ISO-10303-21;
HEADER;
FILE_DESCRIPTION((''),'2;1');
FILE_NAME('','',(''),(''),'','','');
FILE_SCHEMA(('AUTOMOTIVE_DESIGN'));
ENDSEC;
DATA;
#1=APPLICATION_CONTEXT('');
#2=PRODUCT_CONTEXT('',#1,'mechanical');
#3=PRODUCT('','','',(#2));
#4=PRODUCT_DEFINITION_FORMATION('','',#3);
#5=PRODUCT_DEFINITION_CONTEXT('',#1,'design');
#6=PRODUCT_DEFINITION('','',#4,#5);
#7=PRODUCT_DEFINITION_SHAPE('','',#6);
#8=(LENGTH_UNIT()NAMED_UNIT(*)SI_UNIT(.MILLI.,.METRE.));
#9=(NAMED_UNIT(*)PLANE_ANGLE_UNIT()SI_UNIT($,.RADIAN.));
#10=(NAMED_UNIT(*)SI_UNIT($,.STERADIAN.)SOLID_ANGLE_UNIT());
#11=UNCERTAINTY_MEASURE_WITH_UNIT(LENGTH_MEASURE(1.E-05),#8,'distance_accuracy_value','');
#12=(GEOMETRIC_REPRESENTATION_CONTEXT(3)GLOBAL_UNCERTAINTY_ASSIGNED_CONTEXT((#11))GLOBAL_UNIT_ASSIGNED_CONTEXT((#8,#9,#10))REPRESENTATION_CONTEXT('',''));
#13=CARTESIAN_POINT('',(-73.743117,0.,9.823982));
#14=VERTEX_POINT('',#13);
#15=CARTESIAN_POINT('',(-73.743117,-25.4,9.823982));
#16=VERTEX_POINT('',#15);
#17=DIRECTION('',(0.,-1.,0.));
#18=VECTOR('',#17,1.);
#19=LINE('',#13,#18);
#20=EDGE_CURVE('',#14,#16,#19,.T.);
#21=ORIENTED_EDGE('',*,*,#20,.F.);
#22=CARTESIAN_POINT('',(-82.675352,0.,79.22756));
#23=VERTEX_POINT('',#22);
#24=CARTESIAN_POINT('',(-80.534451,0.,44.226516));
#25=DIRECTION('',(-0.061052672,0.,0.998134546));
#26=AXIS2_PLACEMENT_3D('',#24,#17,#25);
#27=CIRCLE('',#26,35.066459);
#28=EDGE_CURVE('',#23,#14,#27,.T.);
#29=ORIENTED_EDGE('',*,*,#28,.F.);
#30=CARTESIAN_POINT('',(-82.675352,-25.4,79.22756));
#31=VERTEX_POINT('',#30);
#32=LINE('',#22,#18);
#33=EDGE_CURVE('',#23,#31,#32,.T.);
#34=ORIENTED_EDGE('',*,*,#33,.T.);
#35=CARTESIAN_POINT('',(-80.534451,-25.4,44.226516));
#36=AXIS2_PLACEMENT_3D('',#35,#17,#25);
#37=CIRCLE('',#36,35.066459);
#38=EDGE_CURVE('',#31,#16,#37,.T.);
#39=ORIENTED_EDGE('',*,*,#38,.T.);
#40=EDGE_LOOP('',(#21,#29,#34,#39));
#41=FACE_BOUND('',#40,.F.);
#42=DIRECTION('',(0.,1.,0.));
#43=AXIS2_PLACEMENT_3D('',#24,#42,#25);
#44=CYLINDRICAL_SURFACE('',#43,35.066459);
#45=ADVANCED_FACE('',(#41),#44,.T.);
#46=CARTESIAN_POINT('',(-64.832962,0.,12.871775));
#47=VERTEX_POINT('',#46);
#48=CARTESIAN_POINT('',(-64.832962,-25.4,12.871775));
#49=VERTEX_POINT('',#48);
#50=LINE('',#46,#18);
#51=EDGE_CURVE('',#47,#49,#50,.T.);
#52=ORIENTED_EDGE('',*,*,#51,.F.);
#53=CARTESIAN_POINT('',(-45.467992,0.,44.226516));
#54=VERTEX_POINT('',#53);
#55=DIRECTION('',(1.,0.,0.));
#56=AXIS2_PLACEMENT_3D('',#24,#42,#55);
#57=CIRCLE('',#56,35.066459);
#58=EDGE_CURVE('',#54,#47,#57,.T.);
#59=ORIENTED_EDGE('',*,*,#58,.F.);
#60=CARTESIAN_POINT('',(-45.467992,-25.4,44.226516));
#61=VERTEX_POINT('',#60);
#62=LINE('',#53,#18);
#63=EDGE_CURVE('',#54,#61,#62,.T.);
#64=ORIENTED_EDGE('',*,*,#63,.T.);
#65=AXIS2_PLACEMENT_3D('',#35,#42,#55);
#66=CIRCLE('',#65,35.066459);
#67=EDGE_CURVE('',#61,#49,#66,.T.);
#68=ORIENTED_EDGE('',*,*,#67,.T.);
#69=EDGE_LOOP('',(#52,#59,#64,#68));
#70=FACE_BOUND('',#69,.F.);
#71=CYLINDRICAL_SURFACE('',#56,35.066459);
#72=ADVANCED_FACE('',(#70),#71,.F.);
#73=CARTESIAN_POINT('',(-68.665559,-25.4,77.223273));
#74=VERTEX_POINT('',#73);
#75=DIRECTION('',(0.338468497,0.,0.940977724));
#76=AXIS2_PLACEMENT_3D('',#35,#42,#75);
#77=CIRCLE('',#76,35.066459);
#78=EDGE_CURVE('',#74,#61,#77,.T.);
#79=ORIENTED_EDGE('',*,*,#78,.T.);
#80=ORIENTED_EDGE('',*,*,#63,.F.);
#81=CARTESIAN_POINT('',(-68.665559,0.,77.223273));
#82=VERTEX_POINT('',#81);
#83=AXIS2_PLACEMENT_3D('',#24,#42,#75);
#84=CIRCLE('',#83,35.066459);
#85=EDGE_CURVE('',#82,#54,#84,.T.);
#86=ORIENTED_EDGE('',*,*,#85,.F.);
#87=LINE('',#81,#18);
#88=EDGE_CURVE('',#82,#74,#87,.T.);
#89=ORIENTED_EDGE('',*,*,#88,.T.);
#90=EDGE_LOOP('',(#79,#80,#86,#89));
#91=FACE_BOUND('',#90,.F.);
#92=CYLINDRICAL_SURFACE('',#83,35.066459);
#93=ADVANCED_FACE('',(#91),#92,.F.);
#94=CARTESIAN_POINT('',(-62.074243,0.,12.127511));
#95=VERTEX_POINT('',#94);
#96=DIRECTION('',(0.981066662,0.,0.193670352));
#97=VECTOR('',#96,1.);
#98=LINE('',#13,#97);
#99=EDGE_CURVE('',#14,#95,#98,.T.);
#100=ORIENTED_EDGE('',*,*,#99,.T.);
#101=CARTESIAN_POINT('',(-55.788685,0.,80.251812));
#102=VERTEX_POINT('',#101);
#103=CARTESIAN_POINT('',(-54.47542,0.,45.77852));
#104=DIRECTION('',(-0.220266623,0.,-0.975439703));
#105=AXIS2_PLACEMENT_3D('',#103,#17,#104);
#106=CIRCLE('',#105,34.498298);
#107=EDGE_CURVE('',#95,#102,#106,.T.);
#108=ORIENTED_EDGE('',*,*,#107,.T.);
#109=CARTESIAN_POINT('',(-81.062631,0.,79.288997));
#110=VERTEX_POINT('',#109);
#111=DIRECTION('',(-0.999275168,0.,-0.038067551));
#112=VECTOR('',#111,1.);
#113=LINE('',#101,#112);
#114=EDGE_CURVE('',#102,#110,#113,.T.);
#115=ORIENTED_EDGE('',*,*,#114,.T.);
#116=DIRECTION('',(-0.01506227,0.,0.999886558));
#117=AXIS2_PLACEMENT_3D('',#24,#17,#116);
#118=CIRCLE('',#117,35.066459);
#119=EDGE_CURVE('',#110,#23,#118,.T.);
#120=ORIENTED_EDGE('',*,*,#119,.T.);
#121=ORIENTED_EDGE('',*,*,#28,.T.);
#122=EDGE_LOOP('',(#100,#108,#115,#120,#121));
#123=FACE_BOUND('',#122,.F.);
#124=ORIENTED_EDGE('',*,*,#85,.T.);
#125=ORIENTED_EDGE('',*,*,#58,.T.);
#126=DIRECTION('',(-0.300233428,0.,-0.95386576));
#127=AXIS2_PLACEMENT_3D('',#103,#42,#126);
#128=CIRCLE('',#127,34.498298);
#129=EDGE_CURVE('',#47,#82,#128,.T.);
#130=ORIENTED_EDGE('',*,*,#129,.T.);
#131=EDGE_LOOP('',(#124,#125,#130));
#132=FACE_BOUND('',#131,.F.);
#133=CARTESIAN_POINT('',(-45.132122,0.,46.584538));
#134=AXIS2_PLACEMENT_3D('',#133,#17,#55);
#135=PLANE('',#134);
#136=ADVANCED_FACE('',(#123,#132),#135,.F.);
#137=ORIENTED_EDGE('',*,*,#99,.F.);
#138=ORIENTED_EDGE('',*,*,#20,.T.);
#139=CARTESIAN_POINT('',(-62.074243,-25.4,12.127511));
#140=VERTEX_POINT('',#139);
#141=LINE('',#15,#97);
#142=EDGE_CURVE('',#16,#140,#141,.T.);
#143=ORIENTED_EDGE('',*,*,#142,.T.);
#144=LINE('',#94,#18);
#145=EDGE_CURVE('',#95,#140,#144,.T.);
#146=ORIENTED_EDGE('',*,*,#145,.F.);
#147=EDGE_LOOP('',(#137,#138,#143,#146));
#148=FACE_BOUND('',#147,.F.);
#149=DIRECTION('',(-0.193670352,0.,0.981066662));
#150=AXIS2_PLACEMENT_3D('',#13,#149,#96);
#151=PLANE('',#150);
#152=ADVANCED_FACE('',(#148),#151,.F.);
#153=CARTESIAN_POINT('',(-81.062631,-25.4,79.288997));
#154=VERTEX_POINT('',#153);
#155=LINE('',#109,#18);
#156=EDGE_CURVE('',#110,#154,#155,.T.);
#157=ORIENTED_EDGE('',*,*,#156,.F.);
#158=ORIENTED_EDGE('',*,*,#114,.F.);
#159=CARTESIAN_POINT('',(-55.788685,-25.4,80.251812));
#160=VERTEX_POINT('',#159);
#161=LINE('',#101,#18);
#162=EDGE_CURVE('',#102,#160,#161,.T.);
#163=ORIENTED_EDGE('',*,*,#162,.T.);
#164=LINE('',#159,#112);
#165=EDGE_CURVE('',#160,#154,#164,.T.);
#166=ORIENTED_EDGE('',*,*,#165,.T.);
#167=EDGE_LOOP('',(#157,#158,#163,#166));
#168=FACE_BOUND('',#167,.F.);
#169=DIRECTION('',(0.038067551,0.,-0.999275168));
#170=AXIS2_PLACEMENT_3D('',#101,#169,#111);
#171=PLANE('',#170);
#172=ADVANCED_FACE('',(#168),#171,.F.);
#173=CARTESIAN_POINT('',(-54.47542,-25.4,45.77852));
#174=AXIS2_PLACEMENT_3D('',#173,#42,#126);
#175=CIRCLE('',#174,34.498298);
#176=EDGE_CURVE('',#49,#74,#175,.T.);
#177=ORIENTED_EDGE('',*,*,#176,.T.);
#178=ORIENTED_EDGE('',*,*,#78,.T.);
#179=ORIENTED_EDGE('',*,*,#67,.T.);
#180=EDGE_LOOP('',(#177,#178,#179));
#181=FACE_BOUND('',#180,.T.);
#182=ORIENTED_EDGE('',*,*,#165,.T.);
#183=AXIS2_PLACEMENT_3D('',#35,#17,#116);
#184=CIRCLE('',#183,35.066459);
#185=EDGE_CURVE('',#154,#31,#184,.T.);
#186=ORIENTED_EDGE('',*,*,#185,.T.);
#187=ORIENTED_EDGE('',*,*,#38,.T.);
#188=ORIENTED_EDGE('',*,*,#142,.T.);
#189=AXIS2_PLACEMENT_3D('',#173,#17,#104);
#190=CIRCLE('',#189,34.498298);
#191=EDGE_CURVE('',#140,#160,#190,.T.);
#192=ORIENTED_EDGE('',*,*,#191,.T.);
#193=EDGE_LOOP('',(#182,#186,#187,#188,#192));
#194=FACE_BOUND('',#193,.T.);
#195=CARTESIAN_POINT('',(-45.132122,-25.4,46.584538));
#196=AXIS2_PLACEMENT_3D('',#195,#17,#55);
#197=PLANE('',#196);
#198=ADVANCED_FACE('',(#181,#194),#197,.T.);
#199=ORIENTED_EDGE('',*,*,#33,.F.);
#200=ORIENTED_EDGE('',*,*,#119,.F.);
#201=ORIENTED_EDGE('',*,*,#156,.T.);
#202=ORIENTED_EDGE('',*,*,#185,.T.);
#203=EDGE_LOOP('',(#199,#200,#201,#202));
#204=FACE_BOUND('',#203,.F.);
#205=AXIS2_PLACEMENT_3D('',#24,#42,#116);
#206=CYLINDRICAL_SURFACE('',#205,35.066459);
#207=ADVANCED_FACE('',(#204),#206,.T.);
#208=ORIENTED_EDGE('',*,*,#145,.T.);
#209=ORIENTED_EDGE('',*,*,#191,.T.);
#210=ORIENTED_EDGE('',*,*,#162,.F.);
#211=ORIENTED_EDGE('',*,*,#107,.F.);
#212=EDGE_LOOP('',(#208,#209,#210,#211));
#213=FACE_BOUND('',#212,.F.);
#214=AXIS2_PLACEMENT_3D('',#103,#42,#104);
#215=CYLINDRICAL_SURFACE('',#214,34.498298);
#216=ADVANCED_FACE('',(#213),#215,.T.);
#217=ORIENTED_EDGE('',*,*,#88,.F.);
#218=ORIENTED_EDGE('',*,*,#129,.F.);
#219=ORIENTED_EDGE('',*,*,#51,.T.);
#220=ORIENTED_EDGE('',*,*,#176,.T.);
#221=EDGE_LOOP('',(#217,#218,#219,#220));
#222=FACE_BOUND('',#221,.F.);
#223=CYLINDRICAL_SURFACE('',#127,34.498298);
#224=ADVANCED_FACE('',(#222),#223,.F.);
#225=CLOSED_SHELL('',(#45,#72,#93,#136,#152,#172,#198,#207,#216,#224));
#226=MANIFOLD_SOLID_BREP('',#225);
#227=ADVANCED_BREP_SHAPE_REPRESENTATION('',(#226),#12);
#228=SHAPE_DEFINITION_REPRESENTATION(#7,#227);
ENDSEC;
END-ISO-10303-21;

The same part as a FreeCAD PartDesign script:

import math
import FreeCAD as App
import Part
import Sketcher

V = App.Vector
Q = App.Units.Quantity

doc = App.newDocument("Part")
body = doc.addObject("PartDesign::Body", "Body")

sketch1 = body.newObject("Sketcher::SketchObject", "Sketch")
sketch1.AttachmentSupport = (doc.getObject("XZ_Plane"), [""])
sketch1.MapMode = "FlatFace"
sketch1.addGeometry([
    Part.ArcOfCircle(Part.Circle(V(-54.5, 45.8, 0), V(0, 0, 1), 34.5), math.radians(-103), math.radians(92)),
    Part.LineSegment(V(-55.8, 80.3, 0), V(-81.1, 79.3, 0)),
    Part.ArcOfCircle(Part.Circle(V(-80.5, 44.2, 0), V(0, 0, 1), 35.1), math.radians(90.86), math.radians(93.5)),
    Part.ArcOfCircle(Part.Circle(V(-80.5, 44.2, 0), V(0, 0, 1), 35.1), math.radians(94), math.radians(281)),
    Part.LineSegment(V(-73.7, 9.8, 0), V(-62.1, 12.1, 0)),
    Part.ArcOfCircle(Part.Circle(V(-80.5, 44.2, 0), V(0, 0, 1), 35.1), math.radians(0), math.radians(70)),
    Part.ArcOfCircle(Part.Circle(V(-80.5, 44.2, 0), V(0, 0, 1), 35.1), math.radians(-63), math.radians(0)),
    Part.ArcOfCircle(Part.Circle(V(-54.5, 45.8, 0), V(0, 0, 1), 34.5), math.radians(114), math.radians(253)),
], False)
sketch1.addConstraint([
    Sketcher.Constraint("Tangent", 0, 2, 1, 1),
    Sketcher.Constraint("Coincident", 1, 2, 2, 1),
    Sketcher.Constraint("Tangent", 2, 2, 3, 1),
    Sketcher.Constraint("Tangent", 3, 2, 4, 1),
    Sketcher.Constraint("Coincident", 4, 2, 0, 1),
    Sketcher.Constraint("Tangent", 5, 1, 6, 2),
    Sketcher.Constraint("Coincident", 6, 1, 7, 2),
    Sketcher.Constraint("Coincident", 7, 1, 5, 2),
    Sketcher.Constraint("Coincident", 5, 3, 2, 3),
    Sketcher.Constraint("Coincident", 7, 3, 0, 3),
    Sketcher.Constraint("Equal", 2, 3),
    Sketcher.Constraint("Equal", 3, 5),
    Sketcher.Constraint("Equal", 5, 6),
    Sketcher.Constraint("Equal", 0, 7),
    Sketcher.Constraint("Horizontal", 6, 3, 5, 1),
    Sketcher.Constraint("Radius", 2, 35.066459),
    Sketcher.Constraint("Radius", 0, 34.498298),
    Sketcher.Constraint("DistanceX", 2, 2, 2, 3, 2.140901),
    Sketcher.Constraint("Distance", 1, 25.292279),
    Sketcher.Constraint("Distance", 4, 11.894069),
    Sketcher.Constraint("DistanceX", 0, 3, -1, 1, 54.47542),
    Sketcher.Constraint("DistanceY", -1, 1, 0, 3, 45.77852),
    Sketcher.Constraint("DistanceX", 2, 3, -1, 1, 80.534451),
    Sketcher.Constraint("DistanceX", 1, 2, -1, 1, 81.062631),
])
pad1 = body.newObject("PartDesign::Pad", "Pad")
pad1.Profile = sketch1
pad1.Length = Q("1 in")

doc.recompute()
